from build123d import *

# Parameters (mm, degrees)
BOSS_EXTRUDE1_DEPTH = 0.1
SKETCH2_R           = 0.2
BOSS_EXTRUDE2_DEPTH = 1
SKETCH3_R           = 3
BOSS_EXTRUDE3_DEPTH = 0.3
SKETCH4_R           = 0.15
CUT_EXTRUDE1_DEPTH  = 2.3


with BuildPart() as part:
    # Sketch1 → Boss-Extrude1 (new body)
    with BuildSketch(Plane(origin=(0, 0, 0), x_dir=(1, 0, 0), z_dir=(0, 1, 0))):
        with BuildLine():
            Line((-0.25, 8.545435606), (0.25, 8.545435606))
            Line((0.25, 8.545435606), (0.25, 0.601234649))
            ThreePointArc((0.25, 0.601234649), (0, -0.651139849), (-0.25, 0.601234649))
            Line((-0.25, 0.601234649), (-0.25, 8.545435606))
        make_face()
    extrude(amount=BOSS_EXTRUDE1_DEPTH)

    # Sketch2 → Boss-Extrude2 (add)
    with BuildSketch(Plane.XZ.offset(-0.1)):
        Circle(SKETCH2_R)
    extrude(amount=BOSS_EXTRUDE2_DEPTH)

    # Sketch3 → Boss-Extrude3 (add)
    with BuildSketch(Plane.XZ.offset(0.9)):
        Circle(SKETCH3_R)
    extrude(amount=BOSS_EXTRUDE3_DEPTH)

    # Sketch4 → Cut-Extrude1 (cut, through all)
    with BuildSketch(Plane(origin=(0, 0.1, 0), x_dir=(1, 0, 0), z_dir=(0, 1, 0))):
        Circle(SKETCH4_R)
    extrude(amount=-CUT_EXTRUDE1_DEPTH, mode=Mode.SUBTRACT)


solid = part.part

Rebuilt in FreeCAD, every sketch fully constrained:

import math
import FreeCAD as App
import Part
import Sketcher

V = App.Vector
Q = App.Units.Quantity

doc = App.newDocument("Part")
body = doc.addObject("PartDesign::Body", "Body")

# Sketch on XZ plane
sketch1 = doc.addObject("Sketcher::SketchObject", "Sketch")
body.addObject(sketch1)
sketch1.AttachmentSupport = (doc.XZ_Plane, [""])
sketch1.MapMode = "FlatFace"
sketch1.addGeometry(Part.LineSegment(V(0.2, -8.5, 0), V(-0.2, -8.5, 0)), False)
sketch1.addGeometry(Part.LineSegment(V(-0.2, -8.5, 0), V(-0.2, -0.6, 0)), False)
sketch1.addGeometry(Part.ArcOfCircle(Part.Circle(V(0, 0, 0), V(0, 0, 1), 0.7), math.radians(-67), math.radians(247)), False)
sketch1.addGeometry(Part.LineSegment(V(0.2, -0.6, 0), V(0.2, -8.5, 0)), False)
sketch1.addConstraint(Sketcher.Constraint("Coincident", 0, 2, 1, 1))
sketch1.addConstraint(Sketcher.Constraint("Coincident", 1, 2, 2, 2))
sketch1.addConstraint(Sketcher.Constraint("Coincident", 2, 1, 3, 1))
sketch1.addConstraint(Sketcher.Constraint("Coincident", 3, 2, 0, 1))
sketch1.addConstraint(Sketcher.Constraint("Horizontal", 0))
sketch1.addConstraint(Sketcher.Constraint("Vertical", 1))
sketch1.addConstraint(Sketcher.Constraint("Vertical", 3))
sketch1.addConstraint(Sketcher.Constraint("Coincident", 2, 3, -1, 1))
sketch1.addConstraint(Sketcher.Constraint("Horizontal", 1, 2, 2, 1))
sketch1.addConstraint(Sketcher.Constraint("DistanceX", 0, 2, 0, 1, Q("0.5 mm")))
sketch1.addConstraint(Sketcher.Constraint("Radius", 2, Q("0.65114 mm")))
sketch1.addConstraint(Sketcher.Constraint("DistanceY", 1, 1, 1, 2, Q("7.944201 mm")))
pad1 = doc.addObject("PartDesign::Pad", "Pad")
body.addObject(pad1)
pad1.Profile = sketch1
pad1.Length = 0.1
pad1.Reversed = True

# Sketch on XZ plane
sketch2 = doc.addObject("Sketcher::SketchObject", "Sketch001")
body.addObject(sketch2)
sketch2.AttachmentSupport = (doc.XZ_Plane, [""])
sketch2.MapMode = "FlatFace"
sketch2.AttachmentOffset = App.Placement(V(0, 0, -0.1), App.Rotation())
sketch2.addGeometry(Part.Circle(V(0, 0, 0), V(0, 0, 1), 0.2), False)
sketch2.addConstraint(Sketcher.Constraint("Coincident", 0, 3, -1, 1))
sketch2.addConstraint(Sketcher.Constraint("Diameter", 0, Q("0.4 mm")))
pad2 = doc.addObject("PartDesign::Pad", "Pad001")
body.addObject(pad2)
pad2.Profile = sketch2
pad2.Length = 1

# Sketch on XZ plane
sketch3 = doc.addObject("Sketcher::SketchObject", "Sketch002")
body.addObject(sketch3)
sketch3.AttachmentSupport = (doc.XZ_Plane, [""])
sketch3.MapMode = "FlatFace"
sketch3.AttachmentOffset = App.Placement(V(0, 0, 0.9), App.Rotation())
sketch3.addGeometry(Part.Circle(V(0, 0, 0), V(0, 0, 1), 3), False)
sketch3.addConstraint(Sketcher.Constraint("Coincident", 0, 3, -1, 1))
sketch3.addConstraint(Sketcher.Constraint("Diameter", 0, Q("6 mm")))
pad3 = doc.addObject("PartDesign::Pad", "Pad002")
body.addObject(pad3)
pad3.Profile = sketch3
pad3.Length = 0.3

# Sketch on XZ plane
sketch4 = doc.addObject("Sketcher::SketchObject", "Sketch003")
body.addObject(sketch4)
sketch4.AttachmentSupport = (doc.XZ_Plane, [""])
sketch4.MapMode = "FlatFace"
sketch4.AttachmentOffset = App.Placement(V(0, 0, -0.1), App.Rotation())
sketch4.addGeometry(Part.Circle(V(0, 0, 0), V(0, 0, 1), 0.15), False)
sketch4.addConstraint(Sketcher.Constraint("Coincident", 0, 3, -1, 1))
sketch4.addConstraint(Sketcher.Constraint("Diameter", 0, Q("0.3 mm")))
pocket1 = doc.addObject("PartDesign::Pocket", "Pocket")
body.addObject(pocket1)
pocket1.Profile = sketch4
pocket1.Type = "ThroughAll"
pocket1.Reversed = True

doc.recompute()
